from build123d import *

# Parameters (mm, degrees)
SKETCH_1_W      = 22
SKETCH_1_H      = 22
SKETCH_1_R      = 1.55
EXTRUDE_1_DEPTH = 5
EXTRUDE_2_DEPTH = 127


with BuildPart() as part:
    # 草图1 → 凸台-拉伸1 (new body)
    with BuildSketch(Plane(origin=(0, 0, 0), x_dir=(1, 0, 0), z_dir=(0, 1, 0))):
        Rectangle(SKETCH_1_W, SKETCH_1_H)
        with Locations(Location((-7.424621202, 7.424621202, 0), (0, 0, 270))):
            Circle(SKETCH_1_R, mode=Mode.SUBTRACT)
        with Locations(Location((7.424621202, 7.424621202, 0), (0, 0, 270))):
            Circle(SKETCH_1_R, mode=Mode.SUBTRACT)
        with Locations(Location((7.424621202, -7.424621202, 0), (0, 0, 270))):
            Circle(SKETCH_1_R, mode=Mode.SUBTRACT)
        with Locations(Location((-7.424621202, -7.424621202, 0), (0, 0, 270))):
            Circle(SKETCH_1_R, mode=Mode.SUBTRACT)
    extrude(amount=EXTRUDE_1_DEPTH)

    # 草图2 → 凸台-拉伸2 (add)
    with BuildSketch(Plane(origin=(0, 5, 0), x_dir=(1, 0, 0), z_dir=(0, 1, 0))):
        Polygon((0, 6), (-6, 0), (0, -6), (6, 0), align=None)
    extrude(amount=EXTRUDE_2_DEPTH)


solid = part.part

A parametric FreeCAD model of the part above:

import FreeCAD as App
import Part
import Sketcher
Q = App.Units.Quantity


def add_polygon(sketch, points):
    """Adds a closed chain of lines whose ends are joined by coincident constraints."""
    first, n = sketch.GeometryCount, len(points)
    for a, b in zip(points, points[1:] + points[:1]):
        sketch.addGeometry(Part.LineSegment(App.Vector(*a, 0), App.Vector(*b, 0)), False)
    for i in range(n):
        sketch.addConstraint(Sketcher.Constraint("Coincident", first + i, 2, first + (i + 1) % n, 1))

doc = App.newDocument("Part")
params = doc.addObject("Spreadsheet::Sheet", "Params")
for row, (alias, value) in enumerate([
    ("sketch1_diameter", "3.1 mm"),
    ("sketch1_width", "22 mm"),
    ("pad1_length", "5 mm"),
    ("pad2_length", "127 mm"),
], start=1):
    params.set(f"A{row}", alias)
    params.set(f"B{row}", "=" + value)
    params.setAlias(f"B{row}", alias)

body = doc.addObject("PartDesign::Body", "Body")

sketch1 = body.newObject("Sketcher::SketchObject", "Sketch")
sketch1.AttachmentSupport = (doc.getObject("XZ_Plane"), [""])
sketch1.MapMode = "FlatFace"
add_polygon(sketch1, [(-11, -11), (-11, 11), (11, 11), (11, -11)])
sketch1.addGeometry(Part.Circle(App.Vector(-7.424621, 7.424621, 0), App.Vector(0, 0, 1), 1.55), False)
sketch1.addGeometry(Part.Circle(App.Vector(7.424621, 7.424621, 0), App.Vector(0, 0, 1), 1.55), False)
sketch1.addGeometry(Part.Circle(App.Vector(-7.424621, -7.424621, 0), App.Vector(0, 0, 1), 1.55), False)
sketch1.addGeometry(Part.Circle(App.Vector(7.424621, -7.424621, 0), App.Vector(0, 0, 1), 1.55), False)
sketch1.addConstraint([
    Sketcher.Constraint("Vertical", 0),
    Sketcher.Constraint("Horizontal", 1),
    Sketcher.Constraint("Vertical", 2),
    Sketcher.Constraint("Horizontal", 3),
    Sketcher.Constraint("Equal", 4, 5),
    Sketcher.Constraint("Equal", 5, 6),
    Sketcher.Constraint("Equal", 6, 7),
    Sketcher.Constraint("Symmetric", 5, 3, 6, 3, -1, 1),
    Sketcher.Constraint("Symmetric", 4, 3, 7, 3, -1, 1),
    Sketcher.Constraint("Symmetric", 0, 2, 2, 2, -1, 1),
    Sketcher.Constraint("Symmetric", 4, 3, 5, 3, -2),
    Sketcher.Constraint("Equal", 3, 0),
    Sketcher.Constraint("Diameter", 4, Q("3.1 mm")),
    Sketcher.Constraint("DistanceX", 1, 1, 1, 2, Q("22 mm")),
    Sketcher.Constraint("DistanceX", 4, 3, -1, 1, Q("7.424621 mm")),
    Sketcher.Constraint("DistanceY", -1, 1, 4, 3, Q("7.424621 mm")),
])
sketch1.setExpression("Constraints[16]", "Params.sketch1_diameter")
sketch1.setExpression("Constraints[17]", "Params.sketch1_width")
pad1 = body.newObject("PartDesign::Pad", "Pad")
pad1.Profile = sketch1
pad1.setExpression("Length", "Params.pad1_length")
pad1.Reversed = True

sketch2 = body.newObject("Sketcher::SketchObject", "Sketch001")
sketch2.AttachmentSupport = (doc.getObject("XZ_Plane"), [""])
sketch2.MapMode = "FlatFace"
sketch2.AttachmentOffset = App.Placement(App.Vector(0, 0, -5), App.Rotation())
add_polygon(sketch2, [(0, -6), (-6, 0), (0, 6), (6, 0)])
sketch2.addConstraint([
    Sketcher.Constraint("Symmetric", 0, 2, 2, 2, -1, 1),
    Sketcher.Constraint("Symmetric", 1, 2, 3, 2, -1, 1),
    Sketcher.Constraint("PointOnObject", 0, 2, -1),
    Sketcher.Constraint("PointOnObject", 1, 2, -2),
    Sketcher.Constraint("Perpendicular", 0, 1),
    Sketcher.Constraint("DistanceX", 0, 2, -1, 1, Q("6 mm")),
])
pad2 = body.newObject("PartDesign::Pad", "Pad001")
pad2.Profile = sketch2
pad2.setExpression("Length", "Params.pad2_length")
pad2.Reversed = True

doc.recompute()
